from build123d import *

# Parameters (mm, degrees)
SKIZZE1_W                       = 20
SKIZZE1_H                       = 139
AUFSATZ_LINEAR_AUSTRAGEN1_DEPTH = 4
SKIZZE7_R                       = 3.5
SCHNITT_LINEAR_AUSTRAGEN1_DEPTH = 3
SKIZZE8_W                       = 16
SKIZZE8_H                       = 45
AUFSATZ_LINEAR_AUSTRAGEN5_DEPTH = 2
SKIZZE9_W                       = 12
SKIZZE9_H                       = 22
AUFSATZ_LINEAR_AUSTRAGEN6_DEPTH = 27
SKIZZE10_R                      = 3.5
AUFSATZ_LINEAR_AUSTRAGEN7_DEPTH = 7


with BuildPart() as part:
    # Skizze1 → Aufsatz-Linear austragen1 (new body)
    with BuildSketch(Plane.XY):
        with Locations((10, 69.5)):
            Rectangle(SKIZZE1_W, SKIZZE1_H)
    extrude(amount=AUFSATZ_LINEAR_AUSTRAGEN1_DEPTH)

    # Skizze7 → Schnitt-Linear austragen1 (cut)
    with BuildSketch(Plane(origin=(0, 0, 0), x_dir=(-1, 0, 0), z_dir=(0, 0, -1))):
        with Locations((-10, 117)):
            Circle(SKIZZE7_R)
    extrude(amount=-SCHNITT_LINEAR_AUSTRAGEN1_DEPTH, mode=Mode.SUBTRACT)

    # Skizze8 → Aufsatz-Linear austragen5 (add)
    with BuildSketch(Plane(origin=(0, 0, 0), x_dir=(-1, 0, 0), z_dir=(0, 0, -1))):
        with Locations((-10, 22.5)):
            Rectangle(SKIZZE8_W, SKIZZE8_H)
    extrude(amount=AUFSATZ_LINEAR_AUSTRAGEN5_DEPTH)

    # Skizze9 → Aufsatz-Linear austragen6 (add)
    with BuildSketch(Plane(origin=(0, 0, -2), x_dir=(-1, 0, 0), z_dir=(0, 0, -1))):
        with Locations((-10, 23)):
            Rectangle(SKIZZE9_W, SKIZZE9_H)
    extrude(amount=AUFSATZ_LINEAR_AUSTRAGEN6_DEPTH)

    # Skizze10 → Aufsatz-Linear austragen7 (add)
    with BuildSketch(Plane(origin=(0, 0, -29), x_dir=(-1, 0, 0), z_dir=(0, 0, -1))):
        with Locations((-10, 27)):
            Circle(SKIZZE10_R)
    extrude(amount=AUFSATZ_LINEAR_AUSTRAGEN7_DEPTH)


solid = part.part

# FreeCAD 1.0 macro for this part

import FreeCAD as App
import Part
import Sketcher

V = App.Vector
Q = App.Units.Quantity

doc = App.newDocument("Part")
params = doc.addObject("Spreadsheet::Sheet", "Params")
for row, (alias, value) in enumerate([
    ("sketch1_width", "20 mm"),
    ("sketch1_height", "139 mm"),
    ("pad1_length", "4 mm"),
    ("sketch2_diameter", "7 mm"),
    ("pocket1_length", "3 mm"),
    ("sketch3_width", "16 mm"),
    ("sketch3_height", "45 mm"),
    ("pad2_length", "2 mm"),
    ("sketch4_width", "12 mm"),
    ("sketch4_height", "22 mm"),
    ("pad3_length", "27 mm"),
    ("sketch5_diameter", "7 mm"),
    ("pad4_length", "7 mm"),
], start=1):
    params.set(f"A{row}", alias)
    params.set(f"B{row}", "=" + value)
    params.setAlias(f"B{row}", alias)

body = doc.addObject("PartDesign::Body", "Body")

sketch1 = body.newObject("Sketcher::SketchObject", "Sketch")
sketch1.AttachmentSupport = (doc.getObject("XY_Plane"), [""])
sketch1.MapMode = "FlatFace"
sketch1.addGeometry(Part.LineSegment(V(0, 139, 0), V(0, 0, 0)), False)
sketch1.addGeometry(Part.LineSegment(V(0, 0, 0), V(20, 0, 0)), False)
sketch1.addGeometry(Part.LineSegment(V(20, 0, 0), V(20, 139, 0)), False)
sketch1.addGeometry(Part.LineSegment(V(20, 139, 0), V(0, 139, 0)), False)
sketch1.addConstraint(Sketcher.Constraint("Coincident", 0, 2, 1, 1))
sketch1.addConstraint(Sketcher.Constraint("Coincident", 1, 2, 2, 1))
sketch1.addConstraint(Sketcher.Constraint("Coincident", 2, 2, 3, 1))
sketch1.addConstraint(Sketcher.Constraint("Coincident", 3, 2, 0, 1))
sketch1.addConstraint(Sketcher.Constraint("Vertical", 0))
sketch1.addConstraint(Sketcher.Constraint("Horizontal", 1))
sketch1.addConstraint(Sketcher.Constraint("Vertical", 2))
sketch1.addConstraint(Sketcher.Constraint("Horizontal", 3))
sketch1.addConstraint(Sketcher.Constraint("Coincident", 0, 2, -1, 1))
sketch1.addConstraint(Sketcher.Constraint("DistanceX", 1, 1, 1, 2, Q("20 mm")))
sketch1.addConstraint(Sketcher.Constraint("DistanceY", 0, 2, 0, 1, Q("139 mm")))
sketch1.setExpression("Constraints[9]", "Params.sketch1_width")
sketch1.setExpression("Constraints[10]", "Params.sketch1_height")
pad1 = body.newObject("PartDesign::Pad", "Pad")
pad1.Profile = sketch1
pad1.setExpression("Length", "Params.pad1_length")

sketch2 = body.newObject("Sketcher::SketchObject", "Sketch001")
sketch2.AttachmentSupport = (doc.getObject("XY_Plane"), [""])
sketch2.MapMode = "FlatFace"
sketch2.addGeometry(Part.Circle(V(10, 117, 0), V(0, 0, 1), 3.5), False)
sketch2.addConstraint(Sketcher.Constraint("Diameter", 0, Q("7 mm")))
sketch2.addConstraint(Sketcher.Constraint("DistanceX", -1, 1, 0, 3, Q("10 mm")))
sketch2.addConstraint(Sketcher.Constraint("DistanceY", -1, 1, 0, 3, Q("117 mm")))
sketch2.setExpression("Constraints[0]", "Params.sketch2_diameter")
pocket1 = body.newObject("PartDesign::Pocket", "Pocket")
pocket1.Profile = sketch2
pocket1.setExpression("Length", "Params.pocket1_length")
pocket1.Reversed = True

sketch3 = body.newObject("Sketcher::SketchObject", "Sketch002")
sketch3.AttachmentSupport = (doc.getObject("XY_Plane"), [""])
sketch3.MapMode = "FlatFace"
sketch3.addGeometry(Part.LineSegment(V(18, 45, 0), V(18, 0, 0)), False)
sketch3.addGeometry(Part.LineSegment(V(18, 0, 0), V(2, 0, 0)), False)
sketch3.addGeometry(Part.LineSegment(V(2, 0, 0), V(2, 45, 0)), False)
sketch3.addGeometry(Part.LineSegment(V(2, 45, 0), V(18, 45, 0)), False)
sketch3.addConstraint(Sketcher.Constraint("Coincident", 0, 2, 1, 1))
sketch3.addConstraint(Sketcher.Constraint("Coincident", 1, 2, 2, 1))
sketch3.addConstraint(Sketcher.Constraint("Coincident", 2, 2, 3, 1))
sketch3.addConstraint(Sketcher.Constraint("Coincident", 3, 2, 0, 1))
sketch3.addConstraint(Sketcher.Constraint("Vertical", 0))
sketch3.addConstraint(Sketcher.Constraint("Horizontal", 1))
sketch3.addConstraint(Sketcher.Constraint("Vertical", 2))
sketch3.addConstraint(Sketcher.Constraint("Horizontal", 3))
sketch3.addConstraint(Sketcher.Constraint("PointOnObject", 0, 2, -1))
sketch3.addConstraint(Sketcher.Constraint("DistanceX", 1, 2, 1, 1, Q("16 mm")))
sketch3.addConstraint(Sketcher.Constraint("DistanceY", 0, 2, 0, 1, Q("45 mm")))
sketch3.addConstraint(Sketcher.Constraint("DistanceX", -1, 1, 0, 2, Q("18 mm")))
sketch3.setExpression("Constraints[9]", "Params.sketch3_width")
sketch3.setExpression("Constraints[10]", "Params.sketch3_height")
pad2 = body.newObject("PartDesign::Pad", "Pad001")
pad2.Profile = sketch3
pad2.setExpression("Length", "Params.pad2_length")
pad2.Reversed = True

sketch4 = body.newObject("Sketcher::SketchObject", "Sketch003")
sketch4.AttachmentSupport = (doc.getObject("XY_Plane"), [""])
sketch4.MapMode = "FlatFace"
sketch4.AttachmentOffset = App.Placement(V(0, 0, -2), App.Rotation())
sketch4.addGeometry(Part.LineSegment(V(16, 34, 0), V(16, 12, 0)), False)
sketch4.addGeometry(Part.LineSegment(V(16, 12, 0), V(4, 12, 0)), False)
sketch4.addGeometry(Part.LineSegment(V(4, 12, 0), V(4, 34, 0)), False)
sketch4.addGeometry(Part.LineSegment(V(4, 34, 0), V(16, 34, 0)), False)
sketch4.addConstraint(Sketcher.Constraint("Coincident", 0, 2, 1, 1))
sketch4.addConstraint(Sketcher.Constraint("Coincident", 1, 2, 2, 1))
sketch4.addConstraint(Sketcher.Constraint("Coincident", 2, 2, 3, 1))
sketch4.addConstraint(Sketcher.Constraint("Coincident", 3, 2, 0, 1))
sketch4.addConstraint(Sketcher.Constraint("Vertical", 0))
sketch4.addConstraint(Sketcher.Constraint("Horizontal", 1))
sketch4.addConstraint(Sketcher.Constraint("Vertical", 2))
sketch4.addConstraint(Sketcher.Constraint("Horizontal", 3))
sketch4.addConstraint(Sketcher.Constraint("DistanceX", 1, 2, 1, 1, Q("12 mm")))
sketch4.addConstraint(Sketcher.Constraint("DistanceY", 0, 2, 0, 1, Q("22 mm")))
sketch4.addConstraint(Sketcher.Constraint("DistanceX", -1, 1, 0, 2, Q("16 mm")))
sketch4.addConstraint(Sketcher.Constraint("DistanceY", -1, 1, 0, 2, Q("12 mm")))
sketch4.setExpression("Constraints[8]", "Params.sketch4_width")
sketch4.setExpression("Constraints[9]", "Params.sketch4_height")
pad3 = body.newObject("PartDesign::Pad", "Pad002")
pad3.Profile = sketch4
pad3.setExpression("Length", "Params.pad3_length")
pad3.Reversed = True

sketch5 = body.newObject("Sketcher::SketchObject", "Sketch004")
sketch5.AttachmentSupport = (doc.getObject("XY_Plane"), [""])
sketch5.MapMode = "FlatFace"
sketch5.AttachmentOffset = App.Placement(V(0, 0, -29), App.Rotation())
sketch5.addGeometry(Part.Circle(V(10, 27, 0), V(0, 0, 1), 3.5), False)
sketch5.addConstraint(Sketcher.Constraint("Diameter", 0, Q("7 mm")))
sketch5.addConstraint(Sketcher.Constraint("DistanceX", -1, 1, 0, 3, Q("10 mm")))
sketch5.addConstraint(Sketcher.Constraint("DistanceY", -1, 1, 0, 3, Q("27 mm")))
sketch5.setExpression("Constraints[0]", "Params.sketch5_diameter")
pad4 = body.newObject("PartDesign::Pad", "Pad003")
pad4.Profile = sketch5
pad4.setExpression("Length", "Params.pad4_length")
pad4.Reversed = True

doc.recompute()
